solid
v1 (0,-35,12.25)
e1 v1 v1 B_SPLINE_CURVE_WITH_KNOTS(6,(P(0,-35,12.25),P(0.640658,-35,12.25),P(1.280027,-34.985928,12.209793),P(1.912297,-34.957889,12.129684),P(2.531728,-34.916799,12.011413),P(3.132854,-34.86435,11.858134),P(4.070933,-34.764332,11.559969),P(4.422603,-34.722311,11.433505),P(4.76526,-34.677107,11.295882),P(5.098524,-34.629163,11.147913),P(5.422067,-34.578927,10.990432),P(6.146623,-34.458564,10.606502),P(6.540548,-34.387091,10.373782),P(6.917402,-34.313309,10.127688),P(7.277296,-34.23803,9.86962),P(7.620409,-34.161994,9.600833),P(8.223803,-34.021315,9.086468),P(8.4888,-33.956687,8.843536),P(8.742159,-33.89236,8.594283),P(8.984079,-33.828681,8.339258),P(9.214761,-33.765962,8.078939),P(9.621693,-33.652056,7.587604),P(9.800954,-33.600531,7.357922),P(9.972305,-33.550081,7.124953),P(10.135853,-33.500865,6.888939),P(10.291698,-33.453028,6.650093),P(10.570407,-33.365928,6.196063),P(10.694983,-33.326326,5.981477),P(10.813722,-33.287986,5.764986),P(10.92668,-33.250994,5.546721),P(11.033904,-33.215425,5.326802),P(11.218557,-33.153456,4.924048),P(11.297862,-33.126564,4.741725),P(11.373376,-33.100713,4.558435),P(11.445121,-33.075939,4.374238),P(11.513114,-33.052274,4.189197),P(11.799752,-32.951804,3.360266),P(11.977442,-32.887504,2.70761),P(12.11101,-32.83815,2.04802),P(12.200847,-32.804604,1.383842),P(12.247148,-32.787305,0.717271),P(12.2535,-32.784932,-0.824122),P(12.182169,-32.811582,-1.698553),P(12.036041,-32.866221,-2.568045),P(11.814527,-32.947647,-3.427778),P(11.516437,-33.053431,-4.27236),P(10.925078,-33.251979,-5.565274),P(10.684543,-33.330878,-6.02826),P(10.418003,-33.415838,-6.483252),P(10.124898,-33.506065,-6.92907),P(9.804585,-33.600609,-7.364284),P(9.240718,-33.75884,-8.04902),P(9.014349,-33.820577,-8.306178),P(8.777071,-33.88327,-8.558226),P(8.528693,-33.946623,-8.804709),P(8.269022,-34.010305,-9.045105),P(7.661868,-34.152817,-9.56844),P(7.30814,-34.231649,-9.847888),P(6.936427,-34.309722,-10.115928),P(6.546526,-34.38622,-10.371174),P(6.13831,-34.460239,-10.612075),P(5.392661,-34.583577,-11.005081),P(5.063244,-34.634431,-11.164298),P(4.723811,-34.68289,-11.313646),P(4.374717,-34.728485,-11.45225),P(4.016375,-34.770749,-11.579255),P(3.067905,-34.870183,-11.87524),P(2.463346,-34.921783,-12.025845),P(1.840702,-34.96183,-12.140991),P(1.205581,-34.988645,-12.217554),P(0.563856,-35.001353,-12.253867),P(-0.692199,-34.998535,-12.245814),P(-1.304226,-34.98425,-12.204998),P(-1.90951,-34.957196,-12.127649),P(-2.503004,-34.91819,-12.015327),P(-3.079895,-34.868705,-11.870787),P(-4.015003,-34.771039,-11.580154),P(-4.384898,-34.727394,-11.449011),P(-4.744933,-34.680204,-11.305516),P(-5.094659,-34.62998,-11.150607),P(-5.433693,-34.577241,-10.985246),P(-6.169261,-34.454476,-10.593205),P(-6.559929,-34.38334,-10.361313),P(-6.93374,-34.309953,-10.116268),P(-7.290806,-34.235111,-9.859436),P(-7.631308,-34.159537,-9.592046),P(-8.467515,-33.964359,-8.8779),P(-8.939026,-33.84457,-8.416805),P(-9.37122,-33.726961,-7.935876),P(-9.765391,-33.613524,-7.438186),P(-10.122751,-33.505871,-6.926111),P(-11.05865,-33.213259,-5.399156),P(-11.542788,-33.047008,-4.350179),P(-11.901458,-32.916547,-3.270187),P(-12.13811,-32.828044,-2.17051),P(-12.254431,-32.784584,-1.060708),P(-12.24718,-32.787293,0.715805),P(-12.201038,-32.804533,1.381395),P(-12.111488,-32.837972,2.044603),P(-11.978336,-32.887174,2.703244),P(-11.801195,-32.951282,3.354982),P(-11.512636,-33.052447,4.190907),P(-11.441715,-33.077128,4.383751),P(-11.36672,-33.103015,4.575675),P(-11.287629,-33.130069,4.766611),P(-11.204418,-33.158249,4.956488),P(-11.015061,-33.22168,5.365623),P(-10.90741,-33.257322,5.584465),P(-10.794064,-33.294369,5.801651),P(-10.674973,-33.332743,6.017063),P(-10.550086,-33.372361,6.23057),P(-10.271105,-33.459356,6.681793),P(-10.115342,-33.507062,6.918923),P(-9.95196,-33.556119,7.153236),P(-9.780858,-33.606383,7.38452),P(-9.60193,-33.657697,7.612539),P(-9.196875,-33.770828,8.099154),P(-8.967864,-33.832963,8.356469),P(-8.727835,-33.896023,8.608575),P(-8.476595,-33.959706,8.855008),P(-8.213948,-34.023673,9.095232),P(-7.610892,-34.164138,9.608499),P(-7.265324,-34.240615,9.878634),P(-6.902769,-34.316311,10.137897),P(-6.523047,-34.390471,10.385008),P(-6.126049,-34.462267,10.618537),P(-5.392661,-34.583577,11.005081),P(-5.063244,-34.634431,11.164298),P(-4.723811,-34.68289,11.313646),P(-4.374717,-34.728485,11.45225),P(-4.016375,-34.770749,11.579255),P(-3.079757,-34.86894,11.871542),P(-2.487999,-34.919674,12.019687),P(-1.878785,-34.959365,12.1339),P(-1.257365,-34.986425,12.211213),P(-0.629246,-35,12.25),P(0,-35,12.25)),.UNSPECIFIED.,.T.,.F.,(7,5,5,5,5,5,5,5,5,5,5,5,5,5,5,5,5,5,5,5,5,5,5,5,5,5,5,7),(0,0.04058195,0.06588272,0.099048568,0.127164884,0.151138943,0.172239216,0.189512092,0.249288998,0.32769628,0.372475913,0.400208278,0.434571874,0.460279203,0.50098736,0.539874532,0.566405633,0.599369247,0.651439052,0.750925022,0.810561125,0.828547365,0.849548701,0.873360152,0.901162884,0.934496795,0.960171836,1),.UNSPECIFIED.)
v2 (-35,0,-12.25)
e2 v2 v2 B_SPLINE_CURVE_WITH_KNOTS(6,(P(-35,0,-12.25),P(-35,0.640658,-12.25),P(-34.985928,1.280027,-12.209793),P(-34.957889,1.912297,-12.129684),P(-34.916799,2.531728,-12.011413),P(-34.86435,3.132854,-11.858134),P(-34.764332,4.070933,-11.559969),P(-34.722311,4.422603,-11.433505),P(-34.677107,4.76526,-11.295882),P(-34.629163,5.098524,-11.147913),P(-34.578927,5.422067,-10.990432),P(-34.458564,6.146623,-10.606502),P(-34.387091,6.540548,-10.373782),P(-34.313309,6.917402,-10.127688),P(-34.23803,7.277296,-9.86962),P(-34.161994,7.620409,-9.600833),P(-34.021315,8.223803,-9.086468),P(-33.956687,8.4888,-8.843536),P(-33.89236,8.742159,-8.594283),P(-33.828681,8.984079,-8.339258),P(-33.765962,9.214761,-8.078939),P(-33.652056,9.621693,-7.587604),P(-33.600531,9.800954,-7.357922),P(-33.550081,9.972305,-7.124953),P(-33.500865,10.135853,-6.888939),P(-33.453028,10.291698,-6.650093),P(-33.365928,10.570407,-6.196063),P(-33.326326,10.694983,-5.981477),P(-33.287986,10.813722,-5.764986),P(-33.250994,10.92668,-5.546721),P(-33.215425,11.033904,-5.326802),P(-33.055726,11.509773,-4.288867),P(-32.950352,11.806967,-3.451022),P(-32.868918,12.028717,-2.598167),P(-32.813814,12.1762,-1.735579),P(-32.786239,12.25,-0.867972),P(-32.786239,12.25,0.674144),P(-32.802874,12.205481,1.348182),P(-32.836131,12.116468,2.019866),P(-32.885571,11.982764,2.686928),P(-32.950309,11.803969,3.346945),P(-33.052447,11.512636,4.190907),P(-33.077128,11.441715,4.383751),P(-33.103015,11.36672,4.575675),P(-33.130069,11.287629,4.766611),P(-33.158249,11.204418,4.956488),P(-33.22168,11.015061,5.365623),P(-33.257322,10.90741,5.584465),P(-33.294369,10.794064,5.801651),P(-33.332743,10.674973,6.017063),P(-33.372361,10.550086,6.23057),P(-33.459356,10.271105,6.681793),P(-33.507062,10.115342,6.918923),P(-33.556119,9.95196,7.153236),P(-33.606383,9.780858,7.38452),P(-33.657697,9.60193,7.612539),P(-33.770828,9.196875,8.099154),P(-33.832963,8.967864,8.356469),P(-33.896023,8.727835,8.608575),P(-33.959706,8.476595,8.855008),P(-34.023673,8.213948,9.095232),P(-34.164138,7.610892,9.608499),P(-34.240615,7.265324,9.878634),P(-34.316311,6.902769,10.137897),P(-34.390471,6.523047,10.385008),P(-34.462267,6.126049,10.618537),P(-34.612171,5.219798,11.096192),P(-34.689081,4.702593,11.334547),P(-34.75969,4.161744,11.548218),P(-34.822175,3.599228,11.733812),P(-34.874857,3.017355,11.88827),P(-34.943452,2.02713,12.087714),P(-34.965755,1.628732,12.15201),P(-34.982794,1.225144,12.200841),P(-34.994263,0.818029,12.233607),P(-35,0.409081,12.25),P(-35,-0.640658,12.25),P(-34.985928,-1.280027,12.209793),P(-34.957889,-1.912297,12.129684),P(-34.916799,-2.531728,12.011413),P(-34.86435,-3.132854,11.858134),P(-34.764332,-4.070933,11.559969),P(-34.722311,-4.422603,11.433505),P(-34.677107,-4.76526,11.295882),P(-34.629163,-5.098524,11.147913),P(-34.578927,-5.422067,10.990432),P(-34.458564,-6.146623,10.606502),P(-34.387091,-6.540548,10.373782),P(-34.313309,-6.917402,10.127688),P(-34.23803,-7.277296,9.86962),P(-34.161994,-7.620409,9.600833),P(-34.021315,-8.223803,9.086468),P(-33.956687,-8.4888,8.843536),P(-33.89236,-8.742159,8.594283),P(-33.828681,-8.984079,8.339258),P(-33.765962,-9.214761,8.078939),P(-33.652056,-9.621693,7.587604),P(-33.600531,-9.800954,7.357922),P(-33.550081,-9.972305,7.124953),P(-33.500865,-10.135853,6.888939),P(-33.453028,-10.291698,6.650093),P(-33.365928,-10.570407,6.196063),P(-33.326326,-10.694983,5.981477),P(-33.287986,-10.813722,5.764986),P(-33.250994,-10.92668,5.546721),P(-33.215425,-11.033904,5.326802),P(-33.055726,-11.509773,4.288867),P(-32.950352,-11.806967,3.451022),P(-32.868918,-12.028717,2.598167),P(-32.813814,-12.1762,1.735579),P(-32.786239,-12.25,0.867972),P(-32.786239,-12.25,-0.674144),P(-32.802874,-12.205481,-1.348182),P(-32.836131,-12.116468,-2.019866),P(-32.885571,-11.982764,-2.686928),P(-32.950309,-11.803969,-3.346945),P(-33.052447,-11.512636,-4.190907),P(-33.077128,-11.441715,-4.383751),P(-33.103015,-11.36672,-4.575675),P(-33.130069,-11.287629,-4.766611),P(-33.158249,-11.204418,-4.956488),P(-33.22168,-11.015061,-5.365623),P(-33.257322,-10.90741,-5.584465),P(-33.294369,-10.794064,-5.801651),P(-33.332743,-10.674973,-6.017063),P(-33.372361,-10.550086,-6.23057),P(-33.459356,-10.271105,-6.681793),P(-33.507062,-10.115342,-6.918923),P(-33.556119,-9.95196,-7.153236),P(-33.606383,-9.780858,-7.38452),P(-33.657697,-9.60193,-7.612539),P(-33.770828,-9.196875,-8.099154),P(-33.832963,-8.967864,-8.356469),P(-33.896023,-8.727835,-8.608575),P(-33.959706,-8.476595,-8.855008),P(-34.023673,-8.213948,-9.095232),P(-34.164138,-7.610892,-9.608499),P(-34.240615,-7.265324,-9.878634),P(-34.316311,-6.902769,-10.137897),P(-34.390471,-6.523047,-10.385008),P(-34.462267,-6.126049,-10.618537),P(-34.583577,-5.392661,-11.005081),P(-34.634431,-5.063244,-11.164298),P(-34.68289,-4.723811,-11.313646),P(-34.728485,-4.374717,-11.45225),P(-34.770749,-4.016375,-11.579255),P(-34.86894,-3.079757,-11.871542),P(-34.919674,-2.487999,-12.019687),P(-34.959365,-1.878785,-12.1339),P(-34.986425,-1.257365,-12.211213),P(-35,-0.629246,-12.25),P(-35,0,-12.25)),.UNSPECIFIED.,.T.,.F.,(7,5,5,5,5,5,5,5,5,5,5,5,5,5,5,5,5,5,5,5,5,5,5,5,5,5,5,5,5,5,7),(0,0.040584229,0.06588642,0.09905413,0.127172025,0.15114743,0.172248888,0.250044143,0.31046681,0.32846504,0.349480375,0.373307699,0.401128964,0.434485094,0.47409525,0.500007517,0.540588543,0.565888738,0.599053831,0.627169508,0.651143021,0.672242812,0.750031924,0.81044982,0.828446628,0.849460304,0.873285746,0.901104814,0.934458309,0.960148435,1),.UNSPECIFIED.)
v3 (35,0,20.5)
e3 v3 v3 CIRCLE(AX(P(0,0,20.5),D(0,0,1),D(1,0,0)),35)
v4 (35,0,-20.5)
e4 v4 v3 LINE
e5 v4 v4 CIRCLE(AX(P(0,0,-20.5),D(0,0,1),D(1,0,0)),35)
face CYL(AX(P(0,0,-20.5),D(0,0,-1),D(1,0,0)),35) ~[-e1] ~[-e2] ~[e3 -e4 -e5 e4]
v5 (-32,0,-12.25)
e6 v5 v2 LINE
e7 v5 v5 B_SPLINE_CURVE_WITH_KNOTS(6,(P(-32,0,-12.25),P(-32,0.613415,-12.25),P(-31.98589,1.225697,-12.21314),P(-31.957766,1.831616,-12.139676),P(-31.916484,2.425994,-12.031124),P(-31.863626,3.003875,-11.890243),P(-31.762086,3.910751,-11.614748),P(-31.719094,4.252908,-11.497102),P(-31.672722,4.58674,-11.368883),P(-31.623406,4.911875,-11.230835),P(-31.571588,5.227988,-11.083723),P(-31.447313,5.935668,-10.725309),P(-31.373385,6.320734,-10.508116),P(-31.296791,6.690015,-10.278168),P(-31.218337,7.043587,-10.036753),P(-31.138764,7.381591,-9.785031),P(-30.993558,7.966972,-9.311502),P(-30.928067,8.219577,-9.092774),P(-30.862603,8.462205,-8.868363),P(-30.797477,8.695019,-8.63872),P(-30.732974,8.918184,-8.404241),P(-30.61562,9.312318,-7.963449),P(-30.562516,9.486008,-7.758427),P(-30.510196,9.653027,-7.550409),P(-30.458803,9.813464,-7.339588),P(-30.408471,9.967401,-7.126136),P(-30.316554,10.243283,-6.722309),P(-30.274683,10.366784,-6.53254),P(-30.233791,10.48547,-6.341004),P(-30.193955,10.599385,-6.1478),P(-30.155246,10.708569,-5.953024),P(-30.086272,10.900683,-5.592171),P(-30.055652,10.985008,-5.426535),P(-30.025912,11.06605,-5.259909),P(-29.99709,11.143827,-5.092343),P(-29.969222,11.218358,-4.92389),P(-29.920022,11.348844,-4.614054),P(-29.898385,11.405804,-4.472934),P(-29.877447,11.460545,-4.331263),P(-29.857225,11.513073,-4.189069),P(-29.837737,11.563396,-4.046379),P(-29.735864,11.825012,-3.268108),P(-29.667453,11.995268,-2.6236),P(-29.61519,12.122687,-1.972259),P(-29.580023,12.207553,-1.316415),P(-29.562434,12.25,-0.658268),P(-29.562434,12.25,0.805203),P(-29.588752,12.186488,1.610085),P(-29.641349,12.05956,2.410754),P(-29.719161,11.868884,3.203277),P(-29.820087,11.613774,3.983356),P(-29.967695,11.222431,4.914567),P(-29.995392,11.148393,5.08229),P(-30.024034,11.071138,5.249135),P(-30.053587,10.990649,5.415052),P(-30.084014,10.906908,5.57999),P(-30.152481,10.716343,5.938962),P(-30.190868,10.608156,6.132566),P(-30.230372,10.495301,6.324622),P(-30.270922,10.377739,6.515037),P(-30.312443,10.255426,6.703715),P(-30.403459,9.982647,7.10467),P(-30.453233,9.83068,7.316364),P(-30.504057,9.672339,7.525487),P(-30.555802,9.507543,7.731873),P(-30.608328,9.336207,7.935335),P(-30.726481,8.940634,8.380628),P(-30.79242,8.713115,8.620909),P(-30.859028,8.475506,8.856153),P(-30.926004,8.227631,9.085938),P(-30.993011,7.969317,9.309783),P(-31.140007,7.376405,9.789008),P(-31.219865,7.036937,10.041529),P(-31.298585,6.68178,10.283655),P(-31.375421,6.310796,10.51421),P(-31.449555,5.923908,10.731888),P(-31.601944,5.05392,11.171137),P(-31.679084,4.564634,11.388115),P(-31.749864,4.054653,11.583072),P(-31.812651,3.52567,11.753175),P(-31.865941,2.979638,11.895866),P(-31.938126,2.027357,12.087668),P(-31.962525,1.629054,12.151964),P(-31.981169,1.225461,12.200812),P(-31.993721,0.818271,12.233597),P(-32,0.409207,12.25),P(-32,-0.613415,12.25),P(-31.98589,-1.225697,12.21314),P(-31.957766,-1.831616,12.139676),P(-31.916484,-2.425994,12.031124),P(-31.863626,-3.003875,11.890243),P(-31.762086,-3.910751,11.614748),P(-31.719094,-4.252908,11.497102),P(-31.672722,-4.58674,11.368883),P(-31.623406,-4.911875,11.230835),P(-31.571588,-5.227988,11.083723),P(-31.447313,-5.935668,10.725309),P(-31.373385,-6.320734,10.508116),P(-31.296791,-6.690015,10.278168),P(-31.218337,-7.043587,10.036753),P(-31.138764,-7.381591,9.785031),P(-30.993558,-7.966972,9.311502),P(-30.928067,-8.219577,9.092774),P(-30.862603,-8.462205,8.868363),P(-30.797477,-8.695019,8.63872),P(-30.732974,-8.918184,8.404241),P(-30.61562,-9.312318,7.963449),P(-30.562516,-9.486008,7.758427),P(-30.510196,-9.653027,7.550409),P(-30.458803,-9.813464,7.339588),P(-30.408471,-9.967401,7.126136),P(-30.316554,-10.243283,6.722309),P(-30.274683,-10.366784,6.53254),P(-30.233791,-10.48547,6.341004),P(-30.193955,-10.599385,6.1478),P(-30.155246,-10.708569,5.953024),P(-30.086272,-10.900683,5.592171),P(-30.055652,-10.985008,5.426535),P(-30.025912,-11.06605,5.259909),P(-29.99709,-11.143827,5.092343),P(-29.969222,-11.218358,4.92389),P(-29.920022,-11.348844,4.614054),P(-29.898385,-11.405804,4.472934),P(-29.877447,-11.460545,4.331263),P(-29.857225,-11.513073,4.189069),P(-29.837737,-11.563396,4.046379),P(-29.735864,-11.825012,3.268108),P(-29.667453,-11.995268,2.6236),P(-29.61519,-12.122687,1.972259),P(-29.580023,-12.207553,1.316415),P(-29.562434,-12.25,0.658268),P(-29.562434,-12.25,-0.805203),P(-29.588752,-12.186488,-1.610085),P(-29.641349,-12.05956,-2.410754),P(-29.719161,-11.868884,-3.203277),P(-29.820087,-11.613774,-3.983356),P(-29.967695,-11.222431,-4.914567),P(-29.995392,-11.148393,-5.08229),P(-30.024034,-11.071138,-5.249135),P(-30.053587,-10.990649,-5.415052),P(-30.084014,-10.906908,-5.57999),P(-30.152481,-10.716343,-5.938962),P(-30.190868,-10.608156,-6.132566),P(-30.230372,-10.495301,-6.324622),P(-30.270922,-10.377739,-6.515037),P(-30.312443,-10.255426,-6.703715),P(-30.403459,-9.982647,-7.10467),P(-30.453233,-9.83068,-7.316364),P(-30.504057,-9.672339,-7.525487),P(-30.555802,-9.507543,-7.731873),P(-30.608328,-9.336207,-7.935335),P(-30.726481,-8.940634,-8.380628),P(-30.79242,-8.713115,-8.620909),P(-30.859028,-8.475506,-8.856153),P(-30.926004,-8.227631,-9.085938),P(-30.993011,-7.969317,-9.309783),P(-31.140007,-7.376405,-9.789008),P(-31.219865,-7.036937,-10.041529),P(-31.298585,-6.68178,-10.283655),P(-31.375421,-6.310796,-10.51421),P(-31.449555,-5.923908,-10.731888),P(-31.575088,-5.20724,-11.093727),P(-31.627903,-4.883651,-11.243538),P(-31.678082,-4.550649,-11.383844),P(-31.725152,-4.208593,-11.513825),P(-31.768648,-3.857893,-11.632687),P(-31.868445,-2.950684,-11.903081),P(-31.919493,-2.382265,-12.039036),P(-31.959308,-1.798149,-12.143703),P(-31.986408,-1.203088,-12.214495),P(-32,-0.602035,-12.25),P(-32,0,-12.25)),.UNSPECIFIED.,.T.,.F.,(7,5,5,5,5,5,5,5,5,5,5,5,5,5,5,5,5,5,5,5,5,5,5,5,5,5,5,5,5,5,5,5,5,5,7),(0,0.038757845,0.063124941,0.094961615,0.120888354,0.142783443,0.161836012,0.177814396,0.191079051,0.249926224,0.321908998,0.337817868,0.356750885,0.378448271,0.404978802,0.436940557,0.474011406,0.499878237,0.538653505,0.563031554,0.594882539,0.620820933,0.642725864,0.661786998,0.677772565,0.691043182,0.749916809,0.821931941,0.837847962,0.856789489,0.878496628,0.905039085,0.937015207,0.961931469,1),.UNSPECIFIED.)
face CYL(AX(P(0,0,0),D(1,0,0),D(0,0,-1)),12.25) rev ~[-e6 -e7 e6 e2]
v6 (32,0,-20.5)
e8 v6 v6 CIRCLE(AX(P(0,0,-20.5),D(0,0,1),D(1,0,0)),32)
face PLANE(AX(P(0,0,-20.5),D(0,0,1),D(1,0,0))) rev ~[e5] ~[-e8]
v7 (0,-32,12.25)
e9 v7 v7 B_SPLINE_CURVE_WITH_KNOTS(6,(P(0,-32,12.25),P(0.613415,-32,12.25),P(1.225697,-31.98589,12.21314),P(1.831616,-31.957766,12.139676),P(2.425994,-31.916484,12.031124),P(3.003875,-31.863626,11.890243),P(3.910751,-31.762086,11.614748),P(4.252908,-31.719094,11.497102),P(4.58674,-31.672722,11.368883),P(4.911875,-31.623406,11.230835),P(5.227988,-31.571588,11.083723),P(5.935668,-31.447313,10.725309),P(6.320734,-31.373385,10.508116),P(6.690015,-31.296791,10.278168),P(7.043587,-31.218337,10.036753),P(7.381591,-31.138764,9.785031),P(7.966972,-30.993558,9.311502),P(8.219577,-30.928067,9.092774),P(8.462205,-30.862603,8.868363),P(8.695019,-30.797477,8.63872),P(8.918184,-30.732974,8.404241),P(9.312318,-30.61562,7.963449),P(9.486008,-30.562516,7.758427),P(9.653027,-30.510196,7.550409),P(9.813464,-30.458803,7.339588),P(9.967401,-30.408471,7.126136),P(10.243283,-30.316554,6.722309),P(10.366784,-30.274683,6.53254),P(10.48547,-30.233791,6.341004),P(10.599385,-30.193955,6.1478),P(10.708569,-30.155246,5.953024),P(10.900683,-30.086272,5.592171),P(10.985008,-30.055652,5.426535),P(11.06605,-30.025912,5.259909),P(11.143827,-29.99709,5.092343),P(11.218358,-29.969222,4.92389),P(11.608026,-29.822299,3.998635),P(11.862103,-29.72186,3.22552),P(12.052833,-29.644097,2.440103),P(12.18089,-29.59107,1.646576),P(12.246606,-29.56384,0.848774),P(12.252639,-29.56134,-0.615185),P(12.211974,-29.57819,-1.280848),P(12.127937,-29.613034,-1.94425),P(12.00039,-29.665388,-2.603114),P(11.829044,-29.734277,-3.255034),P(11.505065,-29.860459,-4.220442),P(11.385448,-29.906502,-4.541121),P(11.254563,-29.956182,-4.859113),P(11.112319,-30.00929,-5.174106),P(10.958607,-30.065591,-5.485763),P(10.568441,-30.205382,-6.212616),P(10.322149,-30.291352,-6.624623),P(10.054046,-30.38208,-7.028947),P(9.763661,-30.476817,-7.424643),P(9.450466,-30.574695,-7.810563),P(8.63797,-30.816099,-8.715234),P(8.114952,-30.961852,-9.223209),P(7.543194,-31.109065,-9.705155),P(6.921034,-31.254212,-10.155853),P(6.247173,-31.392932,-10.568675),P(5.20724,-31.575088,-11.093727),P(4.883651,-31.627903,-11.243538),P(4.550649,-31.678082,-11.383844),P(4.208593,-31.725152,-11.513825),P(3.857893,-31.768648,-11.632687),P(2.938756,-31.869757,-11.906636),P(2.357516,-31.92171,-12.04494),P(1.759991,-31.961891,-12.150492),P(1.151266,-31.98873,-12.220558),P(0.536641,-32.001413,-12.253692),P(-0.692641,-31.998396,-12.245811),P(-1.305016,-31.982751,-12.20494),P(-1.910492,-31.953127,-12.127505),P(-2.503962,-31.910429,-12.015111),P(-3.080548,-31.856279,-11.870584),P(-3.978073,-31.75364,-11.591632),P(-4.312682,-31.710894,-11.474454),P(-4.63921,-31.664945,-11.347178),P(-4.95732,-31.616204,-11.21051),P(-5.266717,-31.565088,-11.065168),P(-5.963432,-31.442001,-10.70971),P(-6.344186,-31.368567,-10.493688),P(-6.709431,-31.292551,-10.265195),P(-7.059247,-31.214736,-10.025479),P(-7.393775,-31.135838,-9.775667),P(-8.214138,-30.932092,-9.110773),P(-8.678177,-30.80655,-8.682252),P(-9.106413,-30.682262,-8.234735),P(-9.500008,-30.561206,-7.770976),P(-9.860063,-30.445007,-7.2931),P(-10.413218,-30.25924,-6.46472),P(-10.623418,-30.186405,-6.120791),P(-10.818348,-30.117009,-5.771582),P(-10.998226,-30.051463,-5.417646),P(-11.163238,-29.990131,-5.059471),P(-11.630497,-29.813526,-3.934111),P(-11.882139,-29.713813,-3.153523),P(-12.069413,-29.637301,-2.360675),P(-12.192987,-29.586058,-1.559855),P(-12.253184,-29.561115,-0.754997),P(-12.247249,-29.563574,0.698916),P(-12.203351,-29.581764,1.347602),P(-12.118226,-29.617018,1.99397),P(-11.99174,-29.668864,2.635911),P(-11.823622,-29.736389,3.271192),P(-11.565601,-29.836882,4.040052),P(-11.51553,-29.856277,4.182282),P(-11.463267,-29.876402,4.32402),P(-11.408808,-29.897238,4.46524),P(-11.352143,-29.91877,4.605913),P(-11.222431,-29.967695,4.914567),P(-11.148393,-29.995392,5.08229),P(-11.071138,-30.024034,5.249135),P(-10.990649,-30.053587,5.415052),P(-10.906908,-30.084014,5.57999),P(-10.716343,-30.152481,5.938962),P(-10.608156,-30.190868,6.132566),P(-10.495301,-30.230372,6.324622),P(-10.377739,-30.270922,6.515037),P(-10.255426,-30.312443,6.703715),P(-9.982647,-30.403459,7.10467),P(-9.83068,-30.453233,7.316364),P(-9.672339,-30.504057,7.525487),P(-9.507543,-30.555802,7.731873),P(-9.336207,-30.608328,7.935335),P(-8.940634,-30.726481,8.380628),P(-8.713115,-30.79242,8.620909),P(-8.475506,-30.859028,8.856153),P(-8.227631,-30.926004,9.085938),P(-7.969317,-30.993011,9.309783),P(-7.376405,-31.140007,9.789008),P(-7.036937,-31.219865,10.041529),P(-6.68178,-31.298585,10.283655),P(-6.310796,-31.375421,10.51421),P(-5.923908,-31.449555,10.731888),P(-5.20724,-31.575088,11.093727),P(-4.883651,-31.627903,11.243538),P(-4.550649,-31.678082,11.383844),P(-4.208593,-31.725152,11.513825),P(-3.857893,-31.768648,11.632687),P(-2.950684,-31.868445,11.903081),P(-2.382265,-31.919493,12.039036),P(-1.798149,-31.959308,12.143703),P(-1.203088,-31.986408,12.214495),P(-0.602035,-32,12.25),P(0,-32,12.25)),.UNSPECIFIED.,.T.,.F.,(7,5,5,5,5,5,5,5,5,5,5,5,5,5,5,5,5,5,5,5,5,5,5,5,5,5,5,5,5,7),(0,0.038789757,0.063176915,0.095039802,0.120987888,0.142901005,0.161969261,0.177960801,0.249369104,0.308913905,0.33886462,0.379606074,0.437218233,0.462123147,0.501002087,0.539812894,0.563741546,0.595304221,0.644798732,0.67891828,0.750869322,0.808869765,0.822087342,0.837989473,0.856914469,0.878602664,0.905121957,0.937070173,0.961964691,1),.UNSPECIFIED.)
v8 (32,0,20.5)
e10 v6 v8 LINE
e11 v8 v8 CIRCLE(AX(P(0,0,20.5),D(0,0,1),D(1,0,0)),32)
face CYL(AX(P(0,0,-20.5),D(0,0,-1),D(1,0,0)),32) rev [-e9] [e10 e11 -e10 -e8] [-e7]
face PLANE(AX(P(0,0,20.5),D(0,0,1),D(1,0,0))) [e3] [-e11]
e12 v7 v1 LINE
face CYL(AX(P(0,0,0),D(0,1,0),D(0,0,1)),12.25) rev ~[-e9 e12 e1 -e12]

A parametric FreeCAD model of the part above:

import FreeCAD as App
import Part
import Sketcher

doc = App.newDocument("Part")
body = doc.addObject("PartDesign::Body", "Body")

sketch1 = body.newObject("Sketcher::SketchObject", "Sketch")
sketch1.AttachmentSupport = (doc.getObject("XY_Plane"), [""])
sketch1.MapMode = "FlatFace"
sketch1.addGeometry(Part.Circle(App.Vector(0, 0, 0), App.Vector(0, 0, 1), 35), False)
sketch1.addGeometry(Part.Circle(App.Vector(0, 0, 0), App.Vector(0, 0, 1), 32), False)
sketch1.addConstraint(Sketcher.Constraint("Coincident", 0, 3, -1, 1))
sketch1.addConstraint(Sketcher.Constraint("Coincident", 1, 3, -1, 1))
sketch1.addConstraint(Sketcher.Constraint("Diameter", 0, 70.0))
sketch1.addConstraint(Sketcher.Constraint("Diameter", 1, 64.0))
pad1 = body.newObject("PartDesign::Pad", "Pad")
pad1.Profile = sketch1
pad1.Type = "TwoLengths"
pad1.Length = 20.5
pad1.Length2 = 20.5

sketch2 = body.newObject("Sketcher::SketchObject", "Sketch001")
sketch2.AttachmentSupport = (doc.getObject("YZ_Plane"), [""])
sketch2.MapMode = "FlatFace"
sketch2.addGeometry(Part.Circle(App.Vector(0, 0, 0), App.Vector(0, 0, 1), 12), False)
sketch2.addConstraint(Sketcher.Constraint("Coincident", 0, 3, -1, 1))
sketch2.addConstraint(Sketcher.Constraint("Diameter", 0, 24.5))
pocket1 = body.newObject("PartDesign::Pocket", "Pocket")
pocket1.Profile = sketch2
pocket1.Type = "ThroughAll"

sketch3 = body.newObject("Sketcher::SketchObject", "Sketch002")
sketch3.AttachmentSupport = (doc.getObject("XZ_Plane"), [""])
sketch3.MapMode = "FlatFace"
sketch3.addGeometry(Part.Circle(App.Vector(0, 0, 0), App.Vector(0, 0, 1), 12), False)
sketch3.addConstraint(Sketcher.Constraint("Coincident", 0, 3, -1, 1))
sketch3.addConstraint(Sketcher.Constraint("Diameter", 0, 24.5))
pocket2 = body.newObject("PartDesign::Pocket", "Pocket001")
pocket2.Profile = sketch3
pocket2.Type = "ThroughAll"
pocket2.Reversed = True

doc.recompute()
